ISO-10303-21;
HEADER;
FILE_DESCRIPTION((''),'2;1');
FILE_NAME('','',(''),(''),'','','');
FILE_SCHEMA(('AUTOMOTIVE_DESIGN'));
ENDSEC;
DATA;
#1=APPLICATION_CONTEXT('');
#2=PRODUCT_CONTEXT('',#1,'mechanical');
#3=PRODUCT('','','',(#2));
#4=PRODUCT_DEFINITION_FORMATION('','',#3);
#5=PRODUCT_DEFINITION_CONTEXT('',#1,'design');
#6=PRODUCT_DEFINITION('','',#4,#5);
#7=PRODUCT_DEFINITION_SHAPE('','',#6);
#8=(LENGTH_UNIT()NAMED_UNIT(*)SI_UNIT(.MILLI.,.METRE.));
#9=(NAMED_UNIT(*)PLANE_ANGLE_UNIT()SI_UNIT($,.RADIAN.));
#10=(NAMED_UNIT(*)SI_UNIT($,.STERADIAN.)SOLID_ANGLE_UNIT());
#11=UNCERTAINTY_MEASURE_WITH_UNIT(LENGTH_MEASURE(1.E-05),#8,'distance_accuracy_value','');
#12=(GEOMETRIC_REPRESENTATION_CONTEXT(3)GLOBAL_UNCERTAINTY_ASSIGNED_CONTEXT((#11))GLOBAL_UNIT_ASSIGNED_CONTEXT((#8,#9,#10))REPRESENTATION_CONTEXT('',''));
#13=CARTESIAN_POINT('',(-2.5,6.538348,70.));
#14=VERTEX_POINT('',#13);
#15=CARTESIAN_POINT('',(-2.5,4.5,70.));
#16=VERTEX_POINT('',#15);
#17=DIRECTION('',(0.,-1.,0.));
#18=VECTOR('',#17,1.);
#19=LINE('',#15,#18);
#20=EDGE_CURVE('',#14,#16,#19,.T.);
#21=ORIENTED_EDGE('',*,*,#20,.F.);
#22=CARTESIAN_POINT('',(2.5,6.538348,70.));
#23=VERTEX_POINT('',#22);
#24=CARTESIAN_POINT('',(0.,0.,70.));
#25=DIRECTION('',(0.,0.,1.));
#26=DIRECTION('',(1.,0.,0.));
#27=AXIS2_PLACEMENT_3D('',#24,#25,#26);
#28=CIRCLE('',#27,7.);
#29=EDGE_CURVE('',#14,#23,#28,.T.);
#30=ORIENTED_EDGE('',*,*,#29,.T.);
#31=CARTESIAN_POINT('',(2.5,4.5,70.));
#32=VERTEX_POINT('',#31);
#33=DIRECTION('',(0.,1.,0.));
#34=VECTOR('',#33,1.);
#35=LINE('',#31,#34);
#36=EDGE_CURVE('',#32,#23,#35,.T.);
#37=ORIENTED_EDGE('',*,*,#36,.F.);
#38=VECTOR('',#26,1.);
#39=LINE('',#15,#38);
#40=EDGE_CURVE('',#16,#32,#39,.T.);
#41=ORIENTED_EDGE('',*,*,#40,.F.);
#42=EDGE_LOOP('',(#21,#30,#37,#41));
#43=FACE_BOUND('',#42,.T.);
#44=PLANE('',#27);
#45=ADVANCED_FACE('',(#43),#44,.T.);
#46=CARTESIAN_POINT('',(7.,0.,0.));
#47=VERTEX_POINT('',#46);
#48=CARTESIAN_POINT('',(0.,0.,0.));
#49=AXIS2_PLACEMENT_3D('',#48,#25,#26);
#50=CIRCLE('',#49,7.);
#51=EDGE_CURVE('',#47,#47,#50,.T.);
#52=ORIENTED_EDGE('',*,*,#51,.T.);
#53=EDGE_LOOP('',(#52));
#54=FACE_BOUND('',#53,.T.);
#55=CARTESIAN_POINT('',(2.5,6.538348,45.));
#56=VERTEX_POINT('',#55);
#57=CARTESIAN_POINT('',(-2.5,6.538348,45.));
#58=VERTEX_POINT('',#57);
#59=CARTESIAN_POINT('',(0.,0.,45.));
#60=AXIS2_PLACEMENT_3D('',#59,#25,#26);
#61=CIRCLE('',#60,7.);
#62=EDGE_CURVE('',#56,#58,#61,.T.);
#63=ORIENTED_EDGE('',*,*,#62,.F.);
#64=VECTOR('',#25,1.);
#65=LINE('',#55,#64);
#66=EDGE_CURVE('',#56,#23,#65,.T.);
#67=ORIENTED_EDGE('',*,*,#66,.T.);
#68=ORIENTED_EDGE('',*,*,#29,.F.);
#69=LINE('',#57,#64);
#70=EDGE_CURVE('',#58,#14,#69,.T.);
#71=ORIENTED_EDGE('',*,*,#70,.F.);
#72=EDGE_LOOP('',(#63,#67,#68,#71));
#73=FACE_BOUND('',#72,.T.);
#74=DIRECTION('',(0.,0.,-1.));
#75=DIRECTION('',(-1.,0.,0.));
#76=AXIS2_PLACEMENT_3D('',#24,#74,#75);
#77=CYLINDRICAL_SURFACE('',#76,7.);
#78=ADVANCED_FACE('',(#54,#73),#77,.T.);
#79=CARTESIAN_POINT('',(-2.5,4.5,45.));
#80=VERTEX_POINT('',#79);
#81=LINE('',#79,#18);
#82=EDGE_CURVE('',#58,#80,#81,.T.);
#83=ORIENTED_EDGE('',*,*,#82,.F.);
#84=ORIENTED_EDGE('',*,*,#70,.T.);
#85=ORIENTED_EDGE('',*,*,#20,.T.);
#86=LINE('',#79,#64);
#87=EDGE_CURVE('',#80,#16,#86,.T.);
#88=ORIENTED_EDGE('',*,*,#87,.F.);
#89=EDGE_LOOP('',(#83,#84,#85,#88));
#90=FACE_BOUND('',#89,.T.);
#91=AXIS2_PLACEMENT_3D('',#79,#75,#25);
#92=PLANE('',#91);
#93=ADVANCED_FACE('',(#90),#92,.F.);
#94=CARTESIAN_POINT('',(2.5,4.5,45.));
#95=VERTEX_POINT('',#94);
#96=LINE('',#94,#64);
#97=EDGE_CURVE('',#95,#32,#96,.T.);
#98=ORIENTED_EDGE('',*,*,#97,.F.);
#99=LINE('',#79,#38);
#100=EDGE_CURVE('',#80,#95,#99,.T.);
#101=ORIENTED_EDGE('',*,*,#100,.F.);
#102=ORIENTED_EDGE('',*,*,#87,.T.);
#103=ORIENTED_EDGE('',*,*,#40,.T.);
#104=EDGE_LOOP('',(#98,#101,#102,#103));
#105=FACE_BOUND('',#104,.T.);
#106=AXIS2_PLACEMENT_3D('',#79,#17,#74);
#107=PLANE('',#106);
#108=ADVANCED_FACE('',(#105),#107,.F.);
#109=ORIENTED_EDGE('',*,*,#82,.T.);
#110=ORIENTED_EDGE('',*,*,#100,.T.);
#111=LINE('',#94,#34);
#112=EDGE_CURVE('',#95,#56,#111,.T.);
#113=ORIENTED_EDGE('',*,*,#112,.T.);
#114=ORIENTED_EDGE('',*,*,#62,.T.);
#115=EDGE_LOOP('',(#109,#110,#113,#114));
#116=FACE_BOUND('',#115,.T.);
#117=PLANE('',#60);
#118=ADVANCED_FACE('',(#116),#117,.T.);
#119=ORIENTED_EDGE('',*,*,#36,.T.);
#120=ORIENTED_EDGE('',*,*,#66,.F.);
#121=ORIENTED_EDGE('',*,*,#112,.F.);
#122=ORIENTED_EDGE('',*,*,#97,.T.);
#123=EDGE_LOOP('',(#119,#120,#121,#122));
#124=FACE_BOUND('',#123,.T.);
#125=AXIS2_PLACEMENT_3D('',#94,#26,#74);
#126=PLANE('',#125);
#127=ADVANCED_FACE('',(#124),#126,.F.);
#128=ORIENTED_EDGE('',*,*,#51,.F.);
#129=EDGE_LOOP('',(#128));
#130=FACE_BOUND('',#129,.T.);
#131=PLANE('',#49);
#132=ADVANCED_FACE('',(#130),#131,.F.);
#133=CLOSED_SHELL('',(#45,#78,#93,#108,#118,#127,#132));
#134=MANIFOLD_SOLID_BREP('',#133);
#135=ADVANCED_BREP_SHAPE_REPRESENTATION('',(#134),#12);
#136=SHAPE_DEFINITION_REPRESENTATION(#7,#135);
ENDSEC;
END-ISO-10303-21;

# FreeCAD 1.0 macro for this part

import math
import FreeCAD as App
import Part
import Sketcher

V = App.Vector
Q = App.Units.Quantity

doc = App.newDocument("Part")
body = doc.addObject("PartDesign::Body", "Body")

# Sketch on XY plane
sketch1 = body.newObject("Sketcher::SketchObject", "Sketch")
sketch1.AttachmentSupport = (doc.getObject("XY_Plane"), [""])
sketch1.MapMode = "FlatFace"
sketch1.addGeometry(Part.Circle(V(0, 0, 0), V(0, 0, 1), 7), False)
sketch1.addConstraint([
    Sketcher.Constraint("Coincident", 0, 3, -1, 1),
    Sketcher.Constraint("Diameter", 0, Q("14 mm")),
])
pad1 = body.newObject("PartDesign::Pad", "Pad")
pad1.Profile = sketch1
pad1.Length = 70

# Sketch on XY plane
sketch2 = body.newObject("Sketcher::SketchObject", "Sketch001")
sketch2.AttachmentSupport = (doc.getObject("XY_Plane"), [""])
sketch2.MapMode = "FlatFace"
sketch2.AttachmentOffset = App.Placement(V(0, 0, 45), App.Rotation())
sketch2.addGeometry([
    Part.LineSegment(V(-2.5, 4.5, 0), V(2.5, 4.5, 0)),
    Part.LineSegment(V(2.5, 4.5, 0), V(2.5, 6.538348, 0)),
    Part.ArcOfCircle(Part.Circle(V(0, 0, 0), V(0, 0, 1), 7), math.radians(69.075168), math.radians(110.924832)),
    Part.LineSegment(V(-2.5, 6.538348, 0), V(-2.5, 4.5, 0)),
], False)
sketch2.addConstraint([
    Sketcher.Constraint("Coincident", 0, 2, 1, 1),
    Sketcher.Constraint("Coincident", 1, 2, 2, 1),
    Sketcher.Constraint("Coincident", 2, 2, 3, 1),
    Sketcher.Constraint("Coincident", 3, 2, 0, 1),
    Sketcher.Constraint("Horizontal", 0),
    Sketcher.Constraint("Vertical", 1),
    Sketcher.Constraint("Vertical", 3),
    Sketcher.Constraint("Coincident", 2, 3, -1, 1),
    Sketcher.Constraint("Horizontal", 1, 2, 2, 2),
    Sketcher.Constraint("Radius", 2, Q("7 mm")),
    Sketcher.Constraint("DistanceX", 0, 1, 0, 2, Q("5 mm")),
    Sketcher.Constraint("DistanceY", -1, 1, 0, 2, Q("4.5 mm")),
])
pocket1 = body.newObject("PartDesign::Pocket", "Pocket")
pocket1.Profile = sketch2
pocket1.Length = 25
pocket1.Reversed = True

doc.recompute()
